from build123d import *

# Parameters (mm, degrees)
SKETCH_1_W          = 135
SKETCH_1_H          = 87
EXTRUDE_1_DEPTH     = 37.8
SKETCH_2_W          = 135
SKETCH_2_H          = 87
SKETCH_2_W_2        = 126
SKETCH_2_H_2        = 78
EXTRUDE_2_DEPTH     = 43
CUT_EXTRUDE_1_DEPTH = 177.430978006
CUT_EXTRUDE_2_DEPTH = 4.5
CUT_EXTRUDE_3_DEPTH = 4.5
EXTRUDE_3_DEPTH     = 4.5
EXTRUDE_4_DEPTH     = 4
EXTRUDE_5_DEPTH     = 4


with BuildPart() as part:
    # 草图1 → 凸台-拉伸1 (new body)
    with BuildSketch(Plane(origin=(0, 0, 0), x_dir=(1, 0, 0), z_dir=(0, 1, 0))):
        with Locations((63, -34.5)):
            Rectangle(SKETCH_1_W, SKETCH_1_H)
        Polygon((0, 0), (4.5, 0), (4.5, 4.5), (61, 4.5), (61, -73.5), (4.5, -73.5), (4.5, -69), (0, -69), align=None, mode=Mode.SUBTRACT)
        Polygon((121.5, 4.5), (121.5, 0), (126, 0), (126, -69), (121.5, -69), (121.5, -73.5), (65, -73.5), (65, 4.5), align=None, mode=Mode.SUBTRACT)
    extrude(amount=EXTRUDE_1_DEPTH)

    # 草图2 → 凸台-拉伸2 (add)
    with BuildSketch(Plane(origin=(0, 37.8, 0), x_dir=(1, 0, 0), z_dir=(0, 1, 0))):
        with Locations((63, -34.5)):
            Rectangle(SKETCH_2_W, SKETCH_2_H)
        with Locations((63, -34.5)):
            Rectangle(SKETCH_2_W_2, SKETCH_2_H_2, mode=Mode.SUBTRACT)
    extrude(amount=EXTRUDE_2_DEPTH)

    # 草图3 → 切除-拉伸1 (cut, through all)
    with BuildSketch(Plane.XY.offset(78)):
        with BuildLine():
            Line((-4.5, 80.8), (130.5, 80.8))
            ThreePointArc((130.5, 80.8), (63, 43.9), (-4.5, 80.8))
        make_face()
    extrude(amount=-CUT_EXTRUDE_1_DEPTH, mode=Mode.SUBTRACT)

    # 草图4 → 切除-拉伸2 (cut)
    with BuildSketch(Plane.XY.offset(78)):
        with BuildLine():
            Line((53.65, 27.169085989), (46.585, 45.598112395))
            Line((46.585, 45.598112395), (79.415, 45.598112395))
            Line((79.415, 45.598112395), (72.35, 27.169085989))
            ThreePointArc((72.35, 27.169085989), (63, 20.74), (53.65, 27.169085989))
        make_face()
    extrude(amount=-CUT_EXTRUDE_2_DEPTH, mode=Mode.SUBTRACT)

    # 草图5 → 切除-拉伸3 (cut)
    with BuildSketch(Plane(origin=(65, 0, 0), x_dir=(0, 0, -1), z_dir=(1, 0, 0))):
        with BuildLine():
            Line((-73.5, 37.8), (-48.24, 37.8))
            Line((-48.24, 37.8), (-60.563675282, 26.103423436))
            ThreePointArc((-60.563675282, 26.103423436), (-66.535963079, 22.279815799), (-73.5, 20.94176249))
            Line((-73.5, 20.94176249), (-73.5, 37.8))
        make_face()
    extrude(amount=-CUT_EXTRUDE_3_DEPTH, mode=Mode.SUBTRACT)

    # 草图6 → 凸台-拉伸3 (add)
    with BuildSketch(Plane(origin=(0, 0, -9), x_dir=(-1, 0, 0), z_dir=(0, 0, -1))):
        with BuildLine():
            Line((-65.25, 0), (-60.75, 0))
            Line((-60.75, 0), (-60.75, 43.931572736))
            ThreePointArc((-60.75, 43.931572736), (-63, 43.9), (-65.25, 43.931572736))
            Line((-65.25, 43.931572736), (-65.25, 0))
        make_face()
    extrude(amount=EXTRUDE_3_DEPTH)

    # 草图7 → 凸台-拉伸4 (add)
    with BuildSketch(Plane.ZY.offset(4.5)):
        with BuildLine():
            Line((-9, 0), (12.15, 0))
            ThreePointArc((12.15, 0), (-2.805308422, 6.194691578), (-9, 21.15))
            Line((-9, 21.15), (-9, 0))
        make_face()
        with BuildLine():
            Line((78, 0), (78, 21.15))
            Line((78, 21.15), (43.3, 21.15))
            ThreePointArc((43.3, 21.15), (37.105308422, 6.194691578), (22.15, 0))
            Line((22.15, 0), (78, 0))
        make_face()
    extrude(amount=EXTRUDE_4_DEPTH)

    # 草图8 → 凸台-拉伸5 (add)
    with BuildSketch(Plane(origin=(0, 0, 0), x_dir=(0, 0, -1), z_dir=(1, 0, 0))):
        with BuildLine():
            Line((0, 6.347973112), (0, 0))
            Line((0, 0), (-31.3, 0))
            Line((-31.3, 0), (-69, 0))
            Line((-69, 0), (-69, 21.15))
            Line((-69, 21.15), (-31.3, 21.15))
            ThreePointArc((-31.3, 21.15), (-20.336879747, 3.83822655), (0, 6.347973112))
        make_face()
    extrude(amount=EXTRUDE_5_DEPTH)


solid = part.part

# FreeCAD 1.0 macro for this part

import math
import FreeCAD as App
import Part
import Sketcher

doc = App.newDocument("Part")
params = doc.addObject("Spreadsheet::Sheet", "Params")
for row, (alias, value) in enumerate([
    ("sketch1_width", "135 mm"),
    ("sketch1_height", "87 mm"),
    ("sketch1_height2", "69 mm"),
    ("sketch1_height3", "78 mm"),
    ("sketch1_width2", "56.5 mm"),
    ("pad1_length", "37.8 mm"),
    ("sketch2_width", "135 mm"),
    ("sketch2_width2", "126 mm"),
    ("sketch2_height", "87 mm"),
    ("sketch2_height2", "78 mm"),
    ("pad2_length", "43 mm"),
    ("sketch3_width", "135 mm"),
    ("sketch4_width", "32.83 mm"),
    ("pocket2_length", "4.5 mm"),
    ("sketch5_height", "25.26 mm"),
    ("pocket3_length", "4.5 mm"),
    ("sketch6_width", "4.5 mm"),
    ("pad3_length", "4.5 mm"),
    ("sketch7_radius", "21.15 mm"),
    ("sketch7_height", "34.7 mm"),
    ("pad4_length", "4 mm"),
    ("sketch8_height", "69 mm"),
    ("sketch8_radius", "19.15 mm"),
    ("sketch8_height2", "37.7 mm"),
    ("sketch8_width", "21.15 mm"),
    ("pad5_length", "4 mm"),
], start=1):
    params.set(f"A{row}", alias)
    params.set(f"B{row}", "=" + value)
    params.setAlias(f"B{row}", alias)

body = doc.addObject("PartDesign::Body", "Body")

sketch1 = doc.addObject("Sketcher::SketchObject", "Sketch")
body.addObject(sketch1)
sketch1.AttachmentSupport = (doc.XZ_Plane, [""])
sketch1.MapMode = "FlatFace"
sketch1.addGeometry([
    Part.LineSegment(App.Vector(-4.5, -9, 0), App.Vector(-4.5, 78, 0)),
    Part.LineSegment(App.Vector(-4.5, 78, 0), App.Vector(130.5, 78, 0)),
    Part.LineSegment(App.Vector(130.5, 78, 0), App.Vector(130.5, -9, 0)),
    Part.LineSegment(App.Vector(130.5, -9, 0), App.Vector(-4.5, -9, 0)),
    Part.LineSegment(App.Vector(0, 69, 0), App.Vector(0, 0, 0)),
    Part.LineSegment(App.Vector(0, 0, 0), App.Vector(4.5, 0, 0)),
    Part.LineSegment(App.Vector(4.5, 0, 0), App.Vector(4.5, -4.5, 0)),
    Part.LineSegment(App.Vector(4.5, -4.5, 0), App.Vector(61, -4.5, 0)),
    Part.LineSegment(App.Vector(61, -4.5, 0), App.Vector(61, 73.5, 0)),
    Part.LineSegment(App.Vector(61, 73.5, 0), App.Vector(4.5, 73.5, 0)),
    Part.LineSegment(App.Vector(4.5, 73.5, 0), App.Vector(4.5, 69, 0)),
    Part.LineSegment(App.Vector(4.5, 69, 0), App.Vector(0, 69, 0)),
    Part.LineSegment(App.Vector(65, -4.5, 0), App.Vector(121.5, -4.5, 0)),
    Part.LineSegment(App.Vector(121.5, -4.5, 0), App.Vector(121.5, 0, 0)),
    Part.LineSegment(App.Vector(121.5, 0, 0), App.Vector(126, 0, 0)),
    Part.LineSegment(App.Vector(126, 0, 0), App.Vector(126, 69, 0)),
    Part.LineSegment(App.Vector(126, 69, 0), App.Vector(121.5, 69, 0)),
    Part.LineSegment(App.Vector(121.5, 69, 0), App.Vector(121.5, 73.5, 0)),
    Part.LineSegment(App.Vector(121.5, 73.5, 0), App.Vector(65, 73.5, 0)),
    Part.LineSegment(App.Vector(65, 73.5, 0), App.Vector(65, -4.5, 0)),
], False)
sketch1.addConstraint([
    Sketcher.Constraint("Coincident", 0, 2, 1, 1),
    Sketcher.Constraint("Coincident", 1, 2, 2, 1),
    Sketcher.Constraint("Coincident", 2, 2, 3, 1),
    Sketcher.Constraint("Coincident", 3, 2, 0, 1),
    Sketcher.Constraint("Coincident", 4, 2, 5, 1),
    Sketcher.Constraint("Coincident", 5, 2, 6, 1),
    Sketcher.Constraint("Coincident", 6, 2, 7, 1),
    Sketcher.Constraint("Coincident", 7, 2, 8, 1),
    Sketcher.Constraint("Coincident", 8, 2, 9, 1),
    Sketcher.Constraint("Coincident", 9, 2, 10, 1),
    Sketcher.Constraint("Coincident", 10, 2, 11, 1),
    Sketcher.Constraint("Coincident", 11, 2, 4, 1),
    Sketcher.Constraint("Coincident", 12, 2, 13, 1),
    Sketcher.Constraint("Coincident", 13, 2, 14, 1),
    Sketcher.Constraint("Coincident", 14, 2, 15, 1),
    Sketcher.Constraint("Coincident", 15, 2, 16, 1),
    Sketcher.Constraint("Coincident", 16, 2, 17, 1),
    Sketcher.Constraint("Coincident", 17, 2, 18, 1),
    Sketcher.Constraint("Coincident", 18, 2, 19, 1),
    Sketcher.Constraint("Coincident", 19, 2, 12, 1),
    Sketcher.Constraint("Vertical", 0),
    Sketcher.Constraint("Horizontal", 1),
    Sketcher.Constraint("Vertical", 2),
    Sketcher.Constraint("Horizontal", 3),
    Sketcher.Constraint("Vertical", 4),
    Sketcher.Constraint("Horizontal", 5),
    Sketcher.Constraint("Vertical", 6),
    Sketcher.Constraint("Horizontal", 7),
    Sketcher.Constraint("Vertical", 8),
    Sketcher.Constraint("Horizontal", 9),
    Sketcher.Constraint("Vertical", 10),
    Sketcher.Constraint("Horizontal", 11),
    Sketcher.Constraint("Horizontal", 12),
    Sketcher.Constraint("Vertical", 13),
    Sketcher.Constraint("Horizontal", 14),
    Sketcher.Constraint("Vertical", 15),
    Sketcher.Constraint("Horizontal", 16),
    Sketcher.Constraint("Vertical", 17),
    Sketcher.Constraint("Horizontal", 18),
    Sketcher.Constraint("Vertical", 19),
    Sketcher.Constraint("Coincident", 4, 2, -1, 1),
    Sketcher.Constraint("PointOnObject", 13, 2, -1),
    Sketcher.Constraint("Horizontal", 7, 2, 12, 2),
    Sketcher.Constraint("Horizontal", 11, 2, 15, 2),
    Sketcher.Constraint("Horizontal", 9, 2, 17, 2),
    Sketcher.Constraint("Vertical", 6, 2, 9, 2),
    Sketcher.Constraint("Vertical", 13, 2, 16, 2),
    Sketcher.Constraint("Equal", 9, 12),
    Sketcher.Constraint("Equal", 11, 14),
    Sketcher.Constraint("Equal", 16, 6),
    Sketcher.Constraint("Equal", 6, 10),
    Sketcher.Constraint("DistanceX", 1, 1, 1, 2, 135.0),
    Sketcher.Constraint("DistanceY", 0, 1, 0, 2, 87.0),
    Sketcher.Constraint("DistanceY", 4, 2, 4, 1, 69.0),
    Sketcher.Constraint("DistanceY", 8, 1, 8, 2, 78.0),
    Sketcher.Constraint("DistanceX", 7, 1, 7, 2, 56.5),
    Sketcher.Constraint("DistanceY", -1, 1, 0, 2, 78.0),
    Sketcher.Constraint("DistanceX", -1, 1, 14, 2, 126.0),
    Sketcher.Constraint("DistanceX", 3, 2, 5, 2, 9.0),
])
sketch1.setExpression("Constraints[51]", "Params.sketch1_width")
sketch1.setExpression("Constraints[52]", "Params.sketch1_height")
sketch1.setExpression("Constraints[53]", "Params.sketch1_height2")
sketch1.setExpression("Constraints[54]", "Params.sketch1_height3")
sketch1.setExpression("Constraints[55]", "Params.sketch1_width2")
pad1 = doc.addObject("PartDesign::Pad", "Pad")
body.addObject(pad1)
pad1.Profile = sketch1
pad1.setExpression("Length", "Params.pad1_length")
pad1.Reversed = True

sketch2 = doc.addObject("Sketcher::SketchObject", "Sketch001")
body.addObject(sketch2)
sketch2.AttachmentSupport = (doc.XZ_Plane, [""])
sketch2.MapMode = "FlatFace"
sketch2.AttachmentOffset = App.Placement(App.Vector(0, 0, -37.8), App.Rotation())
sketch2.addGeometry([
    Part.LineSegment(App.Vector(-4, -9, 0), App.Vector(-4, 78, 0)),
    Part.LineSegment(App.Vector(-4, 78, 0), App.Vector(130, 78, 0)),
    Part.LineSegment(App.Vector(130, 78, 0), App.Vector(130, -9, 0)),
    Part.LineSegment(App.Vector(130, -9, 0), App.Vector(-4, -9, 0)),
    Part.LineSegment(App.Vector(126, 74, 0), App.Vector(0, 74, 0)),
    Part.LineSegment(App.Vector(0, 74, 0), App.Vector(0, -4, 0)),
    Part.LineSegment(App.Vector(0, -4, 0), App.Vector(126, -4, 0)),
    Part.LineSegment(App.Vector(126, -4, 0), App.Vector(126, 74, 0)),
], False)
sketch2.addConstraint([
    Sketcher.Constraint("Coincident", 0, 2, 1, 1),
    Sketcher.Constraint("Coincident", 1, 2, 2, 1),
    Sketcher.Constraint("Coincident", 2, 2, 3, 1),
    Sketcher.Constraint("Coincident", 3, 2, 0, 1),
    Sketcher.Constraint("Coincident", 4, 2, 5, 1),
    Sketcher.Constraint("Coincident", 5, 2, 6, 1),
    Sketcher.Constraint("Coincident", 6, 2, 7, 1),
    Sketcher.Constraint("Coincident", 7, 2, 4, 1),
    Sketcher.Constraint("Vertical", 0),
    Sketcher.Constraint("Horizontal", 1),
    Sketcher.Constraint("Vertical", 2),
    Sketcher.Constraint("Horizontal", 3),
    Sketcher.Constraint("Horizontal", 4),
    Sketcher.Constraint("Vertical", 5),
    Sketcher.Constraint("Horizontal", 6),
    Sketcher.Constraint("Vertical", 7),
    Sketcher.Constraint("PointOnObject", 4, 2, -2),
    Sketcher.Constraint("DistanceX", 1, 1, 1, 2, 135.0),
    Sketcher.Constraint("DistanceX", 4, 2, 4, 1, 126.0),
    Sketcher.Constraint("DistanceY", 0, 1, 0, 2, 87.0),
    Sketcher.Constraint("DistanceY", 5, 2, 5, 1, 78.0),
    Sketcher.Constraint("DistanceY", -1, 1, 0, 2, 78.0),
    Sketcher.Constraint("DistanceX", 0, 2, -1, 1, 4.5),
    Sketcher.Constraint("DistanceY", -1, 1, 4, 2, 73.5),
])
sketch2.setExpression("Constraints[17]", "Params.sketch2_width")
sketch2.setExpression("Constraints[18]", "Params.sketch2_width2")
sketch2.setExpression("Constraints[19]", "Params.sketch2_height")
sketch2.setExpression("Constraints[20]", "Params.sketch2_height2")
pad2 = doc.addObject("PartDesign::Pad", "Pad001")
body.addObject(pad2)
pad2.Profile = sketch2
pad2.setExpression("Length", "Params.pad2_length")
pad2.Reversed = True

sketch3 = doc.addObject("Sketcher::SketchObject", "Sketch002")
body.addObject(sketch3)
sketch3.AttachmentSupport = (doc.XY_Plane, [""])
sketch3.MapMode = "FlatFace"
sketch3.AttachmentOffset = App.Placement(App.Vector(0, 0, 78), App.Rotation())
sketch3.addGeometry([
    Part.LineSegment(App.Vector(130, 81, 0), App.Vector(-4, 81, 0)),
    Part.ArcOfCircle(Part.Circle(App.Vector(63, 124, 0), App.Vector(0, 0, 1), 80), math.radians(-147), math.radians(-33)),
], False)
sketch3.addConstraint([
    Sketcher.Constraint("Coincident", 0, 1, 1, 2),
    Sketcher.Constraint("Coincident", 1, 1, 0, 2),
    Sketcher.Constraint("Horizontal", 0),
    Sketcher.Constraint("DistanceX", 0, 2, 0, 1, 135.0),
    Sketcher.Constraint("DistanceX", -1, 1, 1, 3, 63.0),
    Sketcher.Constraint("DistanceY", -1, 1, 0, 1, 80.8),
    Sketcher.Constraint("Radius", 1, 80.187805),
])
sketch3.setExpression("Constraints[3]", "Params.sketch3_width")
pocket1 = doc.addObject("PartDesign::Pocket", "Pocket")
body.addObject(pocket1)
pocket1.Profile = sketch3
pocket1.Type = "ThroughAll"

sketch4 = doc.addObject("Sketcher::SketchObject", "Sketch003")
body.addObject(sketch4)
sketch4.AttachmentSupport = (doc.XY_Plane, [""])
sketch4.MapMode = "FlatFace"
sketch4.AttachmentOffset = App.Placement(App.Vector(0, 0, 78), App.Rotation())
sketch4.addGeometry([
    Part.LineSegment(App.Vector(47, 46, 0), App.Vector(54, 27, 0)),
    Part.ArcOfCircle(Part.Circle(App.Vector(63, 31, 0), App.Vector(0, 0, 1), 10), math.radians(-159), math.radians(-21)),
    Part.LineSegment(App.Vector(72, 27, 0), App.Vector(79, 46, 0)),
    Part.LineSegment(App.Vector(79, 46, 0), App.Vector(47, 46, 0)),
], False)
sketch4.addConstraint([
    Sketcher.Constraint("Tangent", 0, 2, 1, 1),
    Sketcher.Constraint("Tangent", 1, 2, 2, 1),
    Sketcher.Constraint("Coincident", 2, 2, 3, 1),
    Sketcher.Constraint("Coincident", 3, 2, 0, 1),
    Sketcher.Constraint("Horizontal", 3),
    Sketcher.Constraint("Horizontal", 0, 2, 1, 2),
    Sketcher.Constraint("DistanceX", -1, 1, 1, 3, 63.0),
    Sketcher.Constraint("DistanceX", 3, 2, 3, 1, 32.83),
    Sketcher.Constraint("DistanceX", 0, 2, 1, 2, 18.7),
    Sketcher.Constraint("Radius", 1, 10.013527),
    Sketcher.Constraint("DistanceY", -1, 1, 1, 3, 30.753527),
])
sketch4.setExpression("Constraints[7]", "Params.sketch4_width")
pocket2 = doc.addObject("PartDesign::Pocket", "Pocket001")
body.addObject(pocket2)
pocket2.Profile = sketch4
pocket2.setExpression("Length", "Params.pocket2_length")

sketch5 = doc.addObject("Sketcher::SketchObject", "Sketch004")
body.addObject(sketch5)
sketch5.AttachmentSupport = (doc.YZ_Plane, [""])
sketch5.MapMode = "FlatFace"
sketch5.AttachmentOffset = App.Placement(App.Vector(0, 0, 65), App.Rotation())
sketch5.addGeometry([
    Part.LineSegment(App.Vector(38, 48, 0), App.Vector(38, 74, 0)),
    Part.LineSegment(App.Vector(38, 74, 0), App.Vector(21, 74, 0)),
    Part.ArcOfCircle(Part.Circle(App.Vector(40, 73, 0), App.Vector(0, 0, 1), 19), math.radians(180), math.radians(224)),
    Part.LineSegment(App.Vector(26, 61, 0), App.Vector(38, 48, 0)),
], False)
sketch5.addConstraint([
    Sketcher.Constraint("Coincident", 0, 2, 1, 1),
    Sketcher.Constraint("Coincident", 1, 2, 2, 1),
    Sketcher.Constraint("Tangent", 2, 2, 3, 1),
    Sketcher.Constraint("Coincident", 3, 2, 0, 1),
    Sketcher.Constraint("Vertical", 0),
    Sketcher.Constraint("Horizontal", 1),
    Sketcher.Constraint("Horizontal", 2, 3, 0, 2),
    Sketcher.Constraint("DistanceY", 0, 1, 0, 2, 25.26),
    Sketcher.Constraint("DistanceY", -1, 1, 2, 3, 73.5),
    Sketcher.Constraint("DistanceX", -1, 1, 0, 2, 37.8),
    Sketcher.Constraint("Radius", 2, 18.791552),
    Sketcher.Constraint("Distance", 3, 16.99067),
])
sketch5.setExpression("Constraints[7]", "Params.sketch5_height")
pocket3 = doc.addObject("PartDesign::Pocket", "Pocket002")
body.addObject(pocket3)
pocket3.Profile = sketch5
pocket3.setExpression("Length", "Params.pocket3_length")

sketch6 = doc.addObject("Sketcher::SketchObject", "Sketch005")
body.addObject(sketch6)
sketch6.AttachmentSupport = (doc.XY_Plane, [""])
sketch6.MapMode = "FlatFace"
sketch6.AttachmentOffset = App.Placement(App.Vector(0, 0, -9), App.Rotation())
sketch6.addGeometry([
    Part.LineSegment(App.Vector(65.2, 0, 0), App.Vector(60.8, 0, 0)),
    Part.LineSegment(App.Vector(60.8, 0, 0), App.Vector(60.8, 43.9, 0)),
    Part.ArcOfCircle(Part.Circle(App.Vector(63, 124.1, 0), App.Vector(0, 0, 1), 80.2), math.radians(-91.61), math.radians(-88.39)),
    Part.LineSegment(App.Vector(65.2, 43.9, 0), App.Vector(65.2, 0, 0)),
], False)
sketch6.addConstraint([
    Sketcher.Constraint("Coincident", 0, 2, 1, 1),
    Sketcher.Constraint("Coincident", 1, 2, 2, 1),
    Sketcher.Constraint("Coincident", 2, 2, 3, 1),
    Sketcher.Constraint("Coincident", 3, 2, 0, 1),
    Sketcher.Constraint("Horizontal", 0),
    Sketcher.Constraint("Vertical", 1),
    Sketcher.Constraint("Vertical", 3),
    Sketcher.Constraint("PointOnObject", 0, 2, -1),
    Sketcher.Constraint("Horizontal", 1, 2, 2, 2),
    Sketcher.Constraint("DistanceX", 0, 2, 0, 1, 4.5),
    Sketcher.Constraint("DistanceX", -1, 1, 2, 3, 63.0),
    Sketcher.Constraint("Radius", 2, 80.187806),
    Sketcher.Constraint("DistanceY", 1, 1, 1, 2, 43.931573),
])
sketch6.setExpression("Constraints[9]", "Params.sketch6_width")
pad3 = doc.addObject("PartDesign::Pad", "Pad002")
body.addObject(pad3)
pad3.Profile = sketch6
pad3.setExpression("Length", "Params.pad3_length")
pad3.Reversed = True

sketch7 = doc.addObject("Sketcher::SketchObject", "Sketch006")
body.addObject(sketch7)
sketch7.AttachmentSupport = (doc.YZ_Plane, [""])
sketch7.MapMode = "FlatFace"
sketch7.AttachmentOffset = App.Placement(App.Vector(0, 0, -4.5), App.Rotation())
sketch7.addGeometry([
    Part.LineSegment(App.Vector(0, -9, 0), App.Vector(0, 12, 0)),
    Part.ArcOfCircle(Part.Circle(App.Vector(21, 12, 0), App.Vector(0, 0, 1), 21), math.radians(180), math.radians(270)),
    Part.LineSegment(App.Vector(21, -9, 0), App.Vector(0, -9, 0)),
    Part.LineSegment(App.Vector(0, 78, 0), App.Vector(21, 78, 0)),
    Part.LineSegment(App.Vector(21, 78, 0), App.Vector(21, 43, 0)),
    Part.ArcOfCircle(Part.Circle(App.Vector(21, 22, 0), App.Vector(0, 0, 1), 21), math.radians(90), math.radians(180)),
    Part.LineSegment(App.Vector(0, 22, 0), App.Vector(0, 78, 0)),
], False)
sketch7.addConstraint([
    Sketcher.Constraint("Tangent", 0, 2, 1, 1),
    Sketcher.Constraint("Tangent", 1, 2, 2, 1),
    Sketcher.Constraint("Coincident", 2, 2, 0, 1),
    Sketcher.Constraint("Coincident", 3, 2, 4, 1),
    Sketcher.Constraint("Coincident", 4, 2, 5, 1),
    Sketcher.Constraint("Tangent", 5, 2, 6, 1),
    Sketcher.Constraint("Coincident", 6, 2, 3, 1),
    Sketcher.Constraint("Vertical", 0),
    Sketcher.Constraint("Horizontal", 2),
    Sketcher.Constraint("Horizontal", 3),
    Sketcher.Constraint("Vertical", 4),
    Sketcher.Constraint("Vertical", 6),
    Sketcher.Constraint("Equal", 1, 5),
    Sketcher.Constraint("PointOnObject", 0, 2, -2),
    Sketcher.Constraint("PointOnObject", 5, 2, -2),
    Sketcher.Constraint("Vertical", 1, 2, 3, 2),
    Sketcher.Constraint("Radius", 1, 21.15),
    Sketcher.Constraint("DistanceY", 4, 2, 4, 1, 34.7),
    Sketcher.Constraint("DistanceY", 1, 2, -1, 1, 9.0),
    Sketcher.Constraint("DistanceY", -1, 1, 3, 2, 78.0),
])
sketch7.setExpression("Constraints[16]", "Params.sketch7_radius")
sketch7.setExpression("Constraints[17]", "Params.sketch7_height")
pad4 = doc.addObject("PartDesign::Pad", "Pad003")
body.addObject(pad4)
pad4.Profile = sketch7
pad4.setExpression("Length", "Params.pad4_length")
pad4.Reversed = True

sketch8 = doc.addObject("Sketcher::SketchObject", "Sketch007")
body.addObject(sketch8)
sketch8.AttachmentSupport = (doc.YZ_Plane, [""])
sketch8.MapMode = "FlatFace"
sketch8.addGeometry([
    Part.LineSegment(App.Vector(0, 0, 0), App.Vector(6, 0, 0)),
    Part.ArcOfCircle(Part.Circle(App.Vector(21, 12, 0), App.Vector(0, 0, 1), 19), math.radians(90), math.radians(219)),
    Part.LineSegment(App.Vector(21, 31, 0), App.Vector(21, 69, 0)),
    Part.LineSegment(App.Vector(21, 69, 0), App.Vector(0, 69, 0)),
    Part.LineSegment(App.Vector(0, 69, 0), App.Vector(0, 0, 0)),
], False)
sketch8.addConstraint([
    Sketcher.Constraint("Coincident", 0, 2, 1, 2),
    Sketcher.Constraint("Coincident", 1, 1, 2, 1),
    Sketcher.Constraint("Coincident", 2, 2, 3, 1),
    Sketcher.Constraint("Coincident", 3, 2, 4, 1),
    Sketcher.Constraint("Coincident", 4, 2, 0, 1),
    Sketcher.Constraint("Horizontal", 0),
    Sketcher.Constraint("Vertical", 2),
    Sketcher.Constraint("Horizontal", 3),
    Sketcher.Constraint("Vertical", 4),
    Sketcher.Constraint("Coincident", 4, 2, -1, 1),
    Sketcher.Constraint("DistanceY", 4, 2, 4, 1, 69.0),
    Sketcher.Constraint("Radius", 1, 19.15),
    Sketcher.Constraint("DistanceY", 2, 1, 2, 2, 37.7),
    Sketcher.Constraint("DistanceX", 3, 2, 3, 1, 21.15),
    Sketcher.Constraint("DistanceX", -1, 1, 1, 3, 21.15),
])
sketch8.setExpression("Constraints[10]", "Params.sketch8_height")
sketch8.setExpression("Constraints[11]", "Params.sketch8_radius")
sketch8.setExpression("Constraints[12]", "Params.sketch8_height2")
sketch8.setExpression("Constraints[13]", "Params.sketch8_width")
pad5 = doc.addObject("PartDesign::Pad", "Pad004")
body.addObject(pad5)
pad5.Profile = sketch8
pad5.setExpression("Length", "Params.pad5_length")

doc.recompute()
